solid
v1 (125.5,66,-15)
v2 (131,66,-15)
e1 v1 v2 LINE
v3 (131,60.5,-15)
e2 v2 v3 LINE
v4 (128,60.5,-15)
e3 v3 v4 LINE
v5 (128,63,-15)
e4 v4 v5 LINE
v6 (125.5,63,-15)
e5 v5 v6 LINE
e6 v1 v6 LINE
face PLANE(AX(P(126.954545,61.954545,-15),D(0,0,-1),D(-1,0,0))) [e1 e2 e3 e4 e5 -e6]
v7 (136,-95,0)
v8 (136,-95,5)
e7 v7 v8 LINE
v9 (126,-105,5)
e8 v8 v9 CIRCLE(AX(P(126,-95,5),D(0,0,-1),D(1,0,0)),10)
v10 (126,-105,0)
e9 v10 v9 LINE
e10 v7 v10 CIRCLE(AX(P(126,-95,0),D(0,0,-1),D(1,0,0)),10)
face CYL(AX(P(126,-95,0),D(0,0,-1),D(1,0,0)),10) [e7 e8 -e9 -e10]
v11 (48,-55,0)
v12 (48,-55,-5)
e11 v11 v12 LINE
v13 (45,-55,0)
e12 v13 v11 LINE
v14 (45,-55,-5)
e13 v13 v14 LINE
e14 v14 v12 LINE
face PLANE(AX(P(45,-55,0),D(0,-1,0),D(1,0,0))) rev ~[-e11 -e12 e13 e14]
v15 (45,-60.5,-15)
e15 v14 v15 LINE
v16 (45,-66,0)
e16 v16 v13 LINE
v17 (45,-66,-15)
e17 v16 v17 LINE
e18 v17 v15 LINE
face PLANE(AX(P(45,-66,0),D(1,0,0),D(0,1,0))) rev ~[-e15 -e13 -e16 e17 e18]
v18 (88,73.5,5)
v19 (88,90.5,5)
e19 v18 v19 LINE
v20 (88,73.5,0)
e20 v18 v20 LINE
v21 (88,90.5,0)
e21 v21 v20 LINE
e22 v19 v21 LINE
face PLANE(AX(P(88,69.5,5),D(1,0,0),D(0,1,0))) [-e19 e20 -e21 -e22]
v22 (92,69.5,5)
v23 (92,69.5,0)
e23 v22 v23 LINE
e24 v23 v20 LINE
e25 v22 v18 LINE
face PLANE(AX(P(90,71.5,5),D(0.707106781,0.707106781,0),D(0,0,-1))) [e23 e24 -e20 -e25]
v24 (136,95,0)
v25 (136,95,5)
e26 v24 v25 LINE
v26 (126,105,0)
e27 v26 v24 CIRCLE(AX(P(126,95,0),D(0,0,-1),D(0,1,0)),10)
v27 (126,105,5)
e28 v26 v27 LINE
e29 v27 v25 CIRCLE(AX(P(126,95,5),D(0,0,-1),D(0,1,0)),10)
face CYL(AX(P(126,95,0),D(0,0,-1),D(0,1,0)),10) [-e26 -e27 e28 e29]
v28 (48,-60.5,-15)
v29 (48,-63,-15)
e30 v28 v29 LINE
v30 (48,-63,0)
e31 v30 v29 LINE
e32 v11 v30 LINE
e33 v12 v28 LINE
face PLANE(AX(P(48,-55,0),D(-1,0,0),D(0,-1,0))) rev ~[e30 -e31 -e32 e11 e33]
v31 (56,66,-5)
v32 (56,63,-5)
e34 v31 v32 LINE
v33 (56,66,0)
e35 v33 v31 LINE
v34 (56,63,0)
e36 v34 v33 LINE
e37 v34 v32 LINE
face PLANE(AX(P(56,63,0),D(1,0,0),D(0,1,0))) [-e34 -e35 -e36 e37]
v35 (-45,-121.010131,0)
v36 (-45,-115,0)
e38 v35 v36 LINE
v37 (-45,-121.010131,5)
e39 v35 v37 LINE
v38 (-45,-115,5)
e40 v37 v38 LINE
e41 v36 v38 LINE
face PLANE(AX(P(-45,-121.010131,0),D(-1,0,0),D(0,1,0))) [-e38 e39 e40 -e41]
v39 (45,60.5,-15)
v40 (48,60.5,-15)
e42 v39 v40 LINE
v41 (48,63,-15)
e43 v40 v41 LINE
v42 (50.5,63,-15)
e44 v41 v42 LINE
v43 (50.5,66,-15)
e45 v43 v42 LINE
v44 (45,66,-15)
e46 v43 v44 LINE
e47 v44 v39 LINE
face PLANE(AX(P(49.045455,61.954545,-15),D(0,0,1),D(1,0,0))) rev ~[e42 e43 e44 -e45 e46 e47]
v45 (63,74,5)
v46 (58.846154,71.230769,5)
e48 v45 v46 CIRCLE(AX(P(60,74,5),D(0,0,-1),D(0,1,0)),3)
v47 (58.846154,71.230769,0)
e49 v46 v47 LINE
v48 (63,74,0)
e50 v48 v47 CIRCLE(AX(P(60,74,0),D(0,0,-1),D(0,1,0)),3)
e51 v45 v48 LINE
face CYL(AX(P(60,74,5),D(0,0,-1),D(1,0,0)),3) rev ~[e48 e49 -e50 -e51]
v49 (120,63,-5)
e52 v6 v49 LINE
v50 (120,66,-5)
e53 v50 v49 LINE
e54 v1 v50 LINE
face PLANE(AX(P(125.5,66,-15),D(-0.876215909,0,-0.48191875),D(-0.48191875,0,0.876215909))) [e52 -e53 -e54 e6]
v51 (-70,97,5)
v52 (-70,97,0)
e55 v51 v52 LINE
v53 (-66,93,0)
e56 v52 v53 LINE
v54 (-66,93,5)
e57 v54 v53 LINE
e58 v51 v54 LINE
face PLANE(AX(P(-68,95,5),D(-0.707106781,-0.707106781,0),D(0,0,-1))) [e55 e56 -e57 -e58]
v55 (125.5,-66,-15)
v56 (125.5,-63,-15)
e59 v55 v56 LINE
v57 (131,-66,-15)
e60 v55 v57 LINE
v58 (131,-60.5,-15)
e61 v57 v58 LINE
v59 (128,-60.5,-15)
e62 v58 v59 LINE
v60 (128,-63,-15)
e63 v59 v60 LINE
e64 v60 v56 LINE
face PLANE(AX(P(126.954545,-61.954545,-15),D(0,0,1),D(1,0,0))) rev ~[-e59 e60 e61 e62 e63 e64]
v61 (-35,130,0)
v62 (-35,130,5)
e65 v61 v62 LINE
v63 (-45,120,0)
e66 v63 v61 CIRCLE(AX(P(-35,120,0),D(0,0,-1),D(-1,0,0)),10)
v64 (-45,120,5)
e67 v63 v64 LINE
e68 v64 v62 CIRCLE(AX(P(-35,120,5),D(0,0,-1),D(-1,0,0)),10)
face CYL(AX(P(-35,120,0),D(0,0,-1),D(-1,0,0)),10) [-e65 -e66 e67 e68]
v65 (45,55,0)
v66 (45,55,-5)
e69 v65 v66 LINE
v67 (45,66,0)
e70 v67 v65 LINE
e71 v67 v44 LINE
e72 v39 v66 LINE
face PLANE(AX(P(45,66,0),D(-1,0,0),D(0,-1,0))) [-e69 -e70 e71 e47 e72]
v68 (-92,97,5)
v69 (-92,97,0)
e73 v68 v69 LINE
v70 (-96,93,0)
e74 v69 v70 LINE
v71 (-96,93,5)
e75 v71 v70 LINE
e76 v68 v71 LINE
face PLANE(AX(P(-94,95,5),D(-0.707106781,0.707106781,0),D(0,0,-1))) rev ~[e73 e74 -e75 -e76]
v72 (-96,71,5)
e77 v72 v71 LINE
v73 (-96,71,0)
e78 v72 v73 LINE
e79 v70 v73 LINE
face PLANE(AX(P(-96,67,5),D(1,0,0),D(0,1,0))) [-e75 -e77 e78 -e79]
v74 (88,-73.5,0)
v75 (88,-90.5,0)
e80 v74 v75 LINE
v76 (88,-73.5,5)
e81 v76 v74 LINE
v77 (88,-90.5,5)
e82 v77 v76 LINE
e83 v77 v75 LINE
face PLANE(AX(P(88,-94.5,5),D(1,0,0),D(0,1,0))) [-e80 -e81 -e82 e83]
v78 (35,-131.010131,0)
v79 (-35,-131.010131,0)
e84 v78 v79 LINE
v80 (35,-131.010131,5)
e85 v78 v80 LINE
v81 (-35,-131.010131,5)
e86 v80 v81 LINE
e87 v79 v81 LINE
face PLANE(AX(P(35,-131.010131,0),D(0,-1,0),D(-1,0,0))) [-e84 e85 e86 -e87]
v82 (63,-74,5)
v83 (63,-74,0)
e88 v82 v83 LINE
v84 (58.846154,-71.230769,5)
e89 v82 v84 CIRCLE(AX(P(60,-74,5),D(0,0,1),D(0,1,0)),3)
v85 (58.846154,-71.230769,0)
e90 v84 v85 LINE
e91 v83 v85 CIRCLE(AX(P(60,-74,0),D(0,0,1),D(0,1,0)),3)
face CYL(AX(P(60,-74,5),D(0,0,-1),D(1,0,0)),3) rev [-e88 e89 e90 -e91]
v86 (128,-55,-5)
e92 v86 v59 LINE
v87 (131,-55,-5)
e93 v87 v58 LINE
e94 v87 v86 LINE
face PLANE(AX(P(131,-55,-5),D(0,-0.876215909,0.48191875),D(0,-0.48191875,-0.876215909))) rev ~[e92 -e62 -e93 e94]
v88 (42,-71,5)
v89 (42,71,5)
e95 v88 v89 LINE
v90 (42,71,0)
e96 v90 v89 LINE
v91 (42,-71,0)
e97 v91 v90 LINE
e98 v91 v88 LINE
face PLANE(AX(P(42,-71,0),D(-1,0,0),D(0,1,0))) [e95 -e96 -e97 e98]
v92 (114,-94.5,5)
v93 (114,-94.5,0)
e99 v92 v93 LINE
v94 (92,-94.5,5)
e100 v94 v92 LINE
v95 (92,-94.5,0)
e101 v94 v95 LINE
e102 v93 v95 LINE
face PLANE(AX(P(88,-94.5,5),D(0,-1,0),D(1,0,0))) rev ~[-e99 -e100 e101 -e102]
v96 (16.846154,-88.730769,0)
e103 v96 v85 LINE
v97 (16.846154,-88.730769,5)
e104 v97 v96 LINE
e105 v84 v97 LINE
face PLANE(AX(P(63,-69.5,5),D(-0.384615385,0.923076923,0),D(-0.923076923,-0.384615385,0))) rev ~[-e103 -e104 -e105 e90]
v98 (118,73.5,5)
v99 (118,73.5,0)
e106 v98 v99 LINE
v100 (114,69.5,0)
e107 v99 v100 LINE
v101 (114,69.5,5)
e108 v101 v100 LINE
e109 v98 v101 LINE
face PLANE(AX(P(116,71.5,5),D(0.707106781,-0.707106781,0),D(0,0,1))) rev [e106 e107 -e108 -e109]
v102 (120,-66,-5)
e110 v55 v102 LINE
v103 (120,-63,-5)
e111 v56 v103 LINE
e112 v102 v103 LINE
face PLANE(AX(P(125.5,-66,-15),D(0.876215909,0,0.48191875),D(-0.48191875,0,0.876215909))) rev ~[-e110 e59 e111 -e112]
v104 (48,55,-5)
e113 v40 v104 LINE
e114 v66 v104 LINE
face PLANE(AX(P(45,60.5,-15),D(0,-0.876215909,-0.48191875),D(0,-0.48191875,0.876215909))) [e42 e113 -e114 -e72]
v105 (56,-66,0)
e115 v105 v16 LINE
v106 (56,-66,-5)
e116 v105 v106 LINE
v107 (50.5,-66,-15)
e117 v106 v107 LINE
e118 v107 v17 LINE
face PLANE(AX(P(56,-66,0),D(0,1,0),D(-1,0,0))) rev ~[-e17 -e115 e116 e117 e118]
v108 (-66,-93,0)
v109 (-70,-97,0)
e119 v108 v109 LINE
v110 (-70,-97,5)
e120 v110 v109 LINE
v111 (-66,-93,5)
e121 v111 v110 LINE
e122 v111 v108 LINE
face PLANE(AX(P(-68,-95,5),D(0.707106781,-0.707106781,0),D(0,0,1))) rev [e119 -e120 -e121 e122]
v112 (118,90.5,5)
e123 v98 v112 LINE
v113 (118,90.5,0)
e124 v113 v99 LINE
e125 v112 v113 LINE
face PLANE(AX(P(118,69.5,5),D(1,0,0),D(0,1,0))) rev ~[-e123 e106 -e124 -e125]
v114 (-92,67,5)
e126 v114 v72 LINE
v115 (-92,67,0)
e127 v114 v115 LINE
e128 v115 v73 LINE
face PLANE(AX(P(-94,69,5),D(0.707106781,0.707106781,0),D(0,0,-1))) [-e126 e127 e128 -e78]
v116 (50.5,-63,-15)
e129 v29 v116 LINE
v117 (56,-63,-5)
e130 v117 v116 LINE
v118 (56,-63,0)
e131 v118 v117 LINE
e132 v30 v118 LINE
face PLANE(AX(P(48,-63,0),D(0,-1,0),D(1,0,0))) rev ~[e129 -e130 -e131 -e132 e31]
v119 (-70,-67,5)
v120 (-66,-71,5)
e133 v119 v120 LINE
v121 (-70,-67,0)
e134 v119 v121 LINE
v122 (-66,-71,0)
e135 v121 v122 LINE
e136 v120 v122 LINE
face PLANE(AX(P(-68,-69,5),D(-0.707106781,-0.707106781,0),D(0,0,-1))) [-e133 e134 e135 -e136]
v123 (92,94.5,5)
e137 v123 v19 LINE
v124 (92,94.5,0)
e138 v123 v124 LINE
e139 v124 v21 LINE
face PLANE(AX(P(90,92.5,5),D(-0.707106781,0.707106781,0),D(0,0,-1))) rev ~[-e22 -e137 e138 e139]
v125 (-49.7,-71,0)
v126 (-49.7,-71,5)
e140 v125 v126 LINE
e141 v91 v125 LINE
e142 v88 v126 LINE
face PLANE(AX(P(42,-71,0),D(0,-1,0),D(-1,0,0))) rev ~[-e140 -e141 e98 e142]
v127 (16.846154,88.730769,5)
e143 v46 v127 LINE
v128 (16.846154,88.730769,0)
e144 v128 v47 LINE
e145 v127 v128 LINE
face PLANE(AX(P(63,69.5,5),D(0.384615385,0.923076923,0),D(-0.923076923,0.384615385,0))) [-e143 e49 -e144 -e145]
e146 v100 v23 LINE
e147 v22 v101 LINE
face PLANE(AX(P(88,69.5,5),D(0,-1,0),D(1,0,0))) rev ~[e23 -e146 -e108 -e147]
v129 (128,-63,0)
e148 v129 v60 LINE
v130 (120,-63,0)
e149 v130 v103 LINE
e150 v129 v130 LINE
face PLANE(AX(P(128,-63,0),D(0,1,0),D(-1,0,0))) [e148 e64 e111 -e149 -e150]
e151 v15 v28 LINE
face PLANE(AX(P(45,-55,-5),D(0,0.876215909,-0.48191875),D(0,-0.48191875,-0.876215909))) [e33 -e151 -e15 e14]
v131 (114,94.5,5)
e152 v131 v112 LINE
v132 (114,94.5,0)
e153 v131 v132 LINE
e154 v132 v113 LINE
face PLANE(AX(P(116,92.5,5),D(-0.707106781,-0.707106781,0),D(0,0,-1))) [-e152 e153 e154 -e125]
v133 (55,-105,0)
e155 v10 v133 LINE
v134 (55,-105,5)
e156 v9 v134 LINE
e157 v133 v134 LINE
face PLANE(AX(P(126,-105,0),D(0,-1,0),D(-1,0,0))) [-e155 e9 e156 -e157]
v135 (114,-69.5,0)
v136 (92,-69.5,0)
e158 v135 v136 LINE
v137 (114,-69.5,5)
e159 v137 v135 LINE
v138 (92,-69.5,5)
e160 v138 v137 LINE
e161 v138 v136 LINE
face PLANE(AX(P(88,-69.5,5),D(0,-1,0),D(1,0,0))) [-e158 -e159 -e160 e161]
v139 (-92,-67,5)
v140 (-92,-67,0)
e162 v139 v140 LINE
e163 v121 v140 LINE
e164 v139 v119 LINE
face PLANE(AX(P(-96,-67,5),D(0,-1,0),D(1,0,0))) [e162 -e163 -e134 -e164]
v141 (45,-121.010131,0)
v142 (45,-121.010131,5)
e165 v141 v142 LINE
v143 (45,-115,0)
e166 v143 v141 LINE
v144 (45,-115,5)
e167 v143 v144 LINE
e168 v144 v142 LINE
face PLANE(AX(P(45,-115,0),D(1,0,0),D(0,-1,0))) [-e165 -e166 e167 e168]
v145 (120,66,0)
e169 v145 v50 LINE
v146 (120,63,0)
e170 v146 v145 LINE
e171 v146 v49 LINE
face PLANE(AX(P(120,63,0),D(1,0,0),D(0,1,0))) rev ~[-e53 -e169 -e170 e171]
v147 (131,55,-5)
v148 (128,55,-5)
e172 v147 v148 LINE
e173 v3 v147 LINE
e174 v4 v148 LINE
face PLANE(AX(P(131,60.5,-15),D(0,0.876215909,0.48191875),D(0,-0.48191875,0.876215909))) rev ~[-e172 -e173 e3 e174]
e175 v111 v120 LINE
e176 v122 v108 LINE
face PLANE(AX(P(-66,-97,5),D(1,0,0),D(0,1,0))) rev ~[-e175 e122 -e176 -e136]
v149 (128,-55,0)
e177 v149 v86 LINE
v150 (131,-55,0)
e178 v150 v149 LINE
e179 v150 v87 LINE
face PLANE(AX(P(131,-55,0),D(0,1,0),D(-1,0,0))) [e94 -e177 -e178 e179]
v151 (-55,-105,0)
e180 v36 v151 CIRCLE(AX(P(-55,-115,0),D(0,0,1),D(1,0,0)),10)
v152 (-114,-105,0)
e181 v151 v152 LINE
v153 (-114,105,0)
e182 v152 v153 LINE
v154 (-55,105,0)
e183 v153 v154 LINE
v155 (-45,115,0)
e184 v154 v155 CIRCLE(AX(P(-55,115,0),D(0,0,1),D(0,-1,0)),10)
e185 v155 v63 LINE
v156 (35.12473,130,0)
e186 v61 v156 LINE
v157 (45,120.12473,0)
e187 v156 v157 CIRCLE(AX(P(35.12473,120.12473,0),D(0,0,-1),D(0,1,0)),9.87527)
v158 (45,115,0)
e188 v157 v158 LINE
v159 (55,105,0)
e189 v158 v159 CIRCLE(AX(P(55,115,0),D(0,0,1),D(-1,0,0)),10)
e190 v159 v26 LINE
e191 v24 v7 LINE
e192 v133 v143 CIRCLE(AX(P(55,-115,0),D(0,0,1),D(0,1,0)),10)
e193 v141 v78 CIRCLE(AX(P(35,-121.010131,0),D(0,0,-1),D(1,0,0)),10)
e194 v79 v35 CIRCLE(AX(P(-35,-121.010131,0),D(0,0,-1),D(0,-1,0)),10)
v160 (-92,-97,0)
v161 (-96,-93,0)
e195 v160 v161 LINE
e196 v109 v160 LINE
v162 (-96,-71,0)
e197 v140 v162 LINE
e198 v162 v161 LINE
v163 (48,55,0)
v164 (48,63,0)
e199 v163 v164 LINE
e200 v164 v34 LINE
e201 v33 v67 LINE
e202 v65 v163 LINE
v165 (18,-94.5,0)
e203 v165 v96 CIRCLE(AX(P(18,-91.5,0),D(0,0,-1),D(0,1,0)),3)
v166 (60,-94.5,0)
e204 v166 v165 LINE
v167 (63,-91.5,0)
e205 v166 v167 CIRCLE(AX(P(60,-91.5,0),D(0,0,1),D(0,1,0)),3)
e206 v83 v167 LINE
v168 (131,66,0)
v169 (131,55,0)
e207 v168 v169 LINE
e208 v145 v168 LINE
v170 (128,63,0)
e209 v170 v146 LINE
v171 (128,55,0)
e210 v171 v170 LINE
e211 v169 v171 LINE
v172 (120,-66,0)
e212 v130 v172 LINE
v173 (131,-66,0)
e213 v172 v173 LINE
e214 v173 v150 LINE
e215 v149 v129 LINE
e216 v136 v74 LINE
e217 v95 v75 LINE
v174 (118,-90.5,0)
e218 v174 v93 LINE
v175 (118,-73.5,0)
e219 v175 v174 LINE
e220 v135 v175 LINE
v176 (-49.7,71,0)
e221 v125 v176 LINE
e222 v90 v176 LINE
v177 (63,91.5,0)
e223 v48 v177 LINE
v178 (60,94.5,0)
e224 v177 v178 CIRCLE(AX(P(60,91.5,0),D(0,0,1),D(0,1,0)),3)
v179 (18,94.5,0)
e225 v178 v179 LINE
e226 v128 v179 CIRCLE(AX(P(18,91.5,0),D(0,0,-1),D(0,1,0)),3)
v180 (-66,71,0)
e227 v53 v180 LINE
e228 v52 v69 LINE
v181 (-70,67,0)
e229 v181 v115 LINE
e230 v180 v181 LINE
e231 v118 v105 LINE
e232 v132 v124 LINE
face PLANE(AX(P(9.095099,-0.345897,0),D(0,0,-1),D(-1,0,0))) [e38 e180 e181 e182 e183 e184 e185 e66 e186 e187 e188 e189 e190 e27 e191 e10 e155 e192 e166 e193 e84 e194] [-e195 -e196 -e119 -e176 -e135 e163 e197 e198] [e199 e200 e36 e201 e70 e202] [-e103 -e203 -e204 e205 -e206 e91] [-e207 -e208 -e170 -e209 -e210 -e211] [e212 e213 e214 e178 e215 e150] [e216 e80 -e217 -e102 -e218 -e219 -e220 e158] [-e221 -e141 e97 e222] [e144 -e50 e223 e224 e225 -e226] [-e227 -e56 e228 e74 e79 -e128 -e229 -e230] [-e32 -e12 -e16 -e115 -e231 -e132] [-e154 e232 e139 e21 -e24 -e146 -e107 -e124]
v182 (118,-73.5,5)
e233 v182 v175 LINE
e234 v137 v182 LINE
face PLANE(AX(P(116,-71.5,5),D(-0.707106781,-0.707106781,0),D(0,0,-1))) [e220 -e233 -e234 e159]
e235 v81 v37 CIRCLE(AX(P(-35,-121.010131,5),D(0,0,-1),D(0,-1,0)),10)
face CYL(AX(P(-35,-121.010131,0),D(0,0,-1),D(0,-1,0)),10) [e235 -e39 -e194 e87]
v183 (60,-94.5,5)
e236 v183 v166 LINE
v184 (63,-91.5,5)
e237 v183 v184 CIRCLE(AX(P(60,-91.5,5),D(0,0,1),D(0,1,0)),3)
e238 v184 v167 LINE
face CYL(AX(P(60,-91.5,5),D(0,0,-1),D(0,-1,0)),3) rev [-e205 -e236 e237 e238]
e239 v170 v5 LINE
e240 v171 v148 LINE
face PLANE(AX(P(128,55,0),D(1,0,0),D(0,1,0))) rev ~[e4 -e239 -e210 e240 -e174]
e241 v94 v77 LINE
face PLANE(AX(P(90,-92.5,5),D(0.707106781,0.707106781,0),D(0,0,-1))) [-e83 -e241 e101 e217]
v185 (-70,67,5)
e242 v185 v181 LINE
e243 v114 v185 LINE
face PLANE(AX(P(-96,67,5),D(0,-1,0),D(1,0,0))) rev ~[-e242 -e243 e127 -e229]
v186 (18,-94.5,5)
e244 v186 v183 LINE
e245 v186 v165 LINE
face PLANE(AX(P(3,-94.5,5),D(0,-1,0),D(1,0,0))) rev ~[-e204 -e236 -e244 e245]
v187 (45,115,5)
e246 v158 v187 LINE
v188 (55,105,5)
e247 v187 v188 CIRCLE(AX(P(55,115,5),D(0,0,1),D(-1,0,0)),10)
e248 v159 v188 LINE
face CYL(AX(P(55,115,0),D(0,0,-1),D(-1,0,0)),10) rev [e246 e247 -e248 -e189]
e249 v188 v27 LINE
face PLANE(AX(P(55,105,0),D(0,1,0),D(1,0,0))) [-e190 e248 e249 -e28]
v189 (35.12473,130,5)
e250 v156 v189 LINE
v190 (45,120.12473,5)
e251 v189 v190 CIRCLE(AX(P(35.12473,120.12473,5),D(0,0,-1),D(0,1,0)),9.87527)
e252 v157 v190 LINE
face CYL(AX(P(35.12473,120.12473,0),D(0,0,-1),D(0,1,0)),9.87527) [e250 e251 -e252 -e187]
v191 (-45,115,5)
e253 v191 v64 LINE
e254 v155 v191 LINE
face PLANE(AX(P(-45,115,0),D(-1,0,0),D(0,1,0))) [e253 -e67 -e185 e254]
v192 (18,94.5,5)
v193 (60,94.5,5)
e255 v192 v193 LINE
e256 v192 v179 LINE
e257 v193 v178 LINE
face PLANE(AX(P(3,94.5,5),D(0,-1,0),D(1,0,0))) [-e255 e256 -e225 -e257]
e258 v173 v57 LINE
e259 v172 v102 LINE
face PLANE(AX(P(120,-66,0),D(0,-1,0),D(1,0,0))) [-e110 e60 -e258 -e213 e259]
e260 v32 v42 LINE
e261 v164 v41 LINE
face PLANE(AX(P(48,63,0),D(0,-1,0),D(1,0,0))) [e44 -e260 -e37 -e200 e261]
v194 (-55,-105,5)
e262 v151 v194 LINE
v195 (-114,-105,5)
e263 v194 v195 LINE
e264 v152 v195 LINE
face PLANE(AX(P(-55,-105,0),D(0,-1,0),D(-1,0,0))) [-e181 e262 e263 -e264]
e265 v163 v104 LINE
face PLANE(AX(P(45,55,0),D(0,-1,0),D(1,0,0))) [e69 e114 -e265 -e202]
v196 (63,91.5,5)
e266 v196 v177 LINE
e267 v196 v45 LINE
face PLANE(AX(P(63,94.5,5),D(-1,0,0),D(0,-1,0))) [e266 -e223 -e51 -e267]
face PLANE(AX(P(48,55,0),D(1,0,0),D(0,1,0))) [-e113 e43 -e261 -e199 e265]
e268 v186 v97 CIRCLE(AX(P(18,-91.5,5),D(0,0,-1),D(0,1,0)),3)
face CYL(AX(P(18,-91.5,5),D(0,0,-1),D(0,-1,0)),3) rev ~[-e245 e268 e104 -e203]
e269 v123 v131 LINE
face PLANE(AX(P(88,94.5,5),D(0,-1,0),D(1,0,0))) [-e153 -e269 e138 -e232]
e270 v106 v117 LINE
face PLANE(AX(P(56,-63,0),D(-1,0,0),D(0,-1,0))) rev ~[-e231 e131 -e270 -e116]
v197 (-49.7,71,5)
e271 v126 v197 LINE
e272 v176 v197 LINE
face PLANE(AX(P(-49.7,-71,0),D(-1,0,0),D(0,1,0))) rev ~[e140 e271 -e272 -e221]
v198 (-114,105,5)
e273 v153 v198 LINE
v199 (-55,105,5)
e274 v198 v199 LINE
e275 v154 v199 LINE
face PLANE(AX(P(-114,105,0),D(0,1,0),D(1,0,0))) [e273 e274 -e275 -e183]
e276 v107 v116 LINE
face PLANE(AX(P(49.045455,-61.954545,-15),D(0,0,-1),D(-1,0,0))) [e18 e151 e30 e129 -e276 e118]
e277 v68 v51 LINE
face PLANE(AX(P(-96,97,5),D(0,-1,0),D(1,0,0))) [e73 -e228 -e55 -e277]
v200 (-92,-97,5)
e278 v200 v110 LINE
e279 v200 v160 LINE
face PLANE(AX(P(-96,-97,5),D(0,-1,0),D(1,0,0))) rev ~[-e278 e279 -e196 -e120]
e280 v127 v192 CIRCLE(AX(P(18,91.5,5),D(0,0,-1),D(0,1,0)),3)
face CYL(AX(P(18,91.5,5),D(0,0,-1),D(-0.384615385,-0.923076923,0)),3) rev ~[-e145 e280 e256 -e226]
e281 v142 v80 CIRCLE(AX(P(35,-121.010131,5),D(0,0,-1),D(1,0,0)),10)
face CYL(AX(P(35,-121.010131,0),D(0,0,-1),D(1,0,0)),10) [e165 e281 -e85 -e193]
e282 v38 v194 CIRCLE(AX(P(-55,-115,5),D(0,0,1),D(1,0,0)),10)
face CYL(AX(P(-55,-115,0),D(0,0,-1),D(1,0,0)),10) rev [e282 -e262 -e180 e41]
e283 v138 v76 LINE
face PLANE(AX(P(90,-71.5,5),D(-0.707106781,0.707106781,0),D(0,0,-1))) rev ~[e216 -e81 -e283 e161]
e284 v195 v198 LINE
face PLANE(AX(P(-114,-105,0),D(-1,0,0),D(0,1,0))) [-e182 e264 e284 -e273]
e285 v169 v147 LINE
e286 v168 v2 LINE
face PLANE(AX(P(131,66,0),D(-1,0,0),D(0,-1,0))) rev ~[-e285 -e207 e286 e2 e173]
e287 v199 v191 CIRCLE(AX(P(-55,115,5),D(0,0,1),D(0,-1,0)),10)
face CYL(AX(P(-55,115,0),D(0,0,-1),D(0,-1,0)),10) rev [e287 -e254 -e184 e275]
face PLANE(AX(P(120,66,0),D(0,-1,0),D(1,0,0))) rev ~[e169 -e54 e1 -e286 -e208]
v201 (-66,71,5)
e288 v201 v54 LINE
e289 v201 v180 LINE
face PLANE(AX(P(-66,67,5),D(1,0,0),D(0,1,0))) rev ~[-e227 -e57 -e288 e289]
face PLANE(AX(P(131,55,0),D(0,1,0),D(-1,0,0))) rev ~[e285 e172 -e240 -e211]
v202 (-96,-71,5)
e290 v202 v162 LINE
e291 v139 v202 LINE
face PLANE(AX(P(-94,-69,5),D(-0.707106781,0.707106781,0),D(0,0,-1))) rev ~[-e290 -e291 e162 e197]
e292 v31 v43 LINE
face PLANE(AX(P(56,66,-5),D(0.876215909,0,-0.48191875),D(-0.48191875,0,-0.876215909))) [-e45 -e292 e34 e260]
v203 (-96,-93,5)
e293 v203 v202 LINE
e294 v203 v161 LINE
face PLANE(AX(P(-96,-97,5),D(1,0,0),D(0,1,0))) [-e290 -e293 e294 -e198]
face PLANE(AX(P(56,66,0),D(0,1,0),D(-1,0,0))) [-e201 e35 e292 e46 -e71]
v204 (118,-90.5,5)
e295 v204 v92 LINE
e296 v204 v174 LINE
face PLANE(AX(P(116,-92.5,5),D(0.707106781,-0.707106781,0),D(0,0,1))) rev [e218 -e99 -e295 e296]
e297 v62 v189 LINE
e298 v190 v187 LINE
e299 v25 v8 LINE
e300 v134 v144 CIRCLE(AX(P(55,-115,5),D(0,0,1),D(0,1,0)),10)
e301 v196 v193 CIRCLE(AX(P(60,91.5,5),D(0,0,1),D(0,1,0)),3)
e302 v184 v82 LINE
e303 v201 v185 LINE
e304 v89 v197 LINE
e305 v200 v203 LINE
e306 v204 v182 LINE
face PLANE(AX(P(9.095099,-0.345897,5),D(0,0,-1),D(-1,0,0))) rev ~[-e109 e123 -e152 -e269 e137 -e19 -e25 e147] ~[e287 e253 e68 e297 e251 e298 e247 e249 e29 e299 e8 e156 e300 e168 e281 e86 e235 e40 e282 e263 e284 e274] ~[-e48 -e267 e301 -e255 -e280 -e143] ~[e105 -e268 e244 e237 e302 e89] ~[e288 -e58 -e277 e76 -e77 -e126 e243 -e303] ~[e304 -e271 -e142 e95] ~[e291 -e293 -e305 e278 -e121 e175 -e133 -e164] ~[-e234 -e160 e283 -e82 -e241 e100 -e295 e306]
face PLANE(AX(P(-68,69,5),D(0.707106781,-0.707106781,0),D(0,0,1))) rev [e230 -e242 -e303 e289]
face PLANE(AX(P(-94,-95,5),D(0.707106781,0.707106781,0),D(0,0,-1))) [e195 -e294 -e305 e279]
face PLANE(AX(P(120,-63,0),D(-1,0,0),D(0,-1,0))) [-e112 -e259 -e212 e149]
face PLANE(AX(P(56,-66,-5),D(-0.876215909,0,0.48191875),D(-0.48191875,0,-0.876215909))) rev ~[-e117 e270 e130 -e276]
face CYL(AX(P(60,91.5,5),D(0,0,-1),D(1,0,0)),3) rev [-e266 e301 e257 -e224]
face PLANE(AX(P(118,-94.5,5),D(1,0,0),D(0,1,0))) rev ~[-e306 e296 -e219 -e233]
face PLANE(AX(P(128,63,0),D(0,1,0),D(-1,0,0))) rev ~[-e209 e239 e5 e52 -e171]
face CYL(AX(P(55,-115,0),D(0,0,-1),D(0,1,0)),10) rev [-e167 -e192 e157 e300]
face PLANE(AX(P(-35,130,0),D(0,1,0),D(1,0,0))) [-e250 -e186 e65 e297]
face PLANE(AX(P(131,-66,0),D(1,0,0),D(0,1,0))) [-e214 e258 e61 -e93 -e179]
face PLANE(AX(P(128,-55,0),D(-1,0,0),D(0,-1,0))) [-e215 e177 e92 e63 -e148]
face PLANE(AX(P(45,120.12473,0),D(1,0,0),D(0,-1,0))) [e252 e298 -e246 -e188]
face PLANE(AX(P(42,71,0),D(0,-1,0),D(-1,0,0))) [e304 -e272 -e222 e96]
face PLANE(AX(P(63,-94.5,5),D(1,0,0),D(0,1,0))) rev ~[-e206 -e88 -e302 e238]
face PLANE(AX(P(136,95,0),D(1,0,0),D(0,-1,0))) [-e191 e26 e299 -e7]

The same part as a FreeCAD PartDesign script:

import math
import FreeCAD as App
import Part
import Sketcher

V = App.Vector


def edges_at(feature, points):
    """Names of the edges that pass closest to the given points."""
    edges = feature.Shape.Edges
    near = lambda p: min(range(len(edges)), key=lambda i: edges[i].distToShape(Part.Vertex(*p))[0])
    return sorted({f"Edge{near(p) + 1}" for p in points})

doc = App.newDocument("Part")
body = doc.addObject("PartDesign::Body", "Body")

# Sketch on XY plane
sketch1 = doc.addObject("Sketcher::SketchObject", "Sketch")
body.addObject(sketch1)
sketch1.AttachmentSupport = (doc.XY_Plane, [""])
sketch1.MapMode = "FlatFace"
sketch1.addGeometry(Part.LineSegment(V(-45, 120, 0), V(-45, 115, 0)), False)
sketch1.addGeometry(Part.ArcOfCircle(Part.Circle(V(-55, 115, 0), V(0, 0, 1), 10), math.radians(-90), math.radians(0)), False)
sketch1.addGeometry(Part.LineSegment(V(-55, 105, 0), V(-114, 105, 0)), False)
sketch1.addGeometry(Part.LineSegment(V(-114, 105, 0), V(-114, -105, 0)), False)
sketch1.addGeometry(Part.LineSegment(V(-114, -105, 0), V(-55, -105, 0)), False)
sketch1.addGeometry(Part.ArcOfCircle(Part.Circle(V(-55, -115, 0), V(0, 0, 1), 10), math.radians(0), math.radians(90)), False)
sketch1.addGeometry(Part.LineSegment(V(-45, -115, 0), V(-45, -121.010131, 0)), False)
sketch1.addGeometry(Part.ArcOfCircle(Part.Circle(V(-35, -121.010131, 0), V(0, 0, 1), 10), math.radians(180), math.radians(270)), False)
sketch1.addGeometry(Part.LineSegment(V(-35, -131.010131, 0), V(35, -131.010131, 0)), False)
sketch1.addGeometry(Part.ArcOfCircle(Part.Circle(V(35, -121.010131, 0), V(0, 0, 1), 10), math.radians(-90), math.radians(0)), False)
sketch1.addGeometry(Part.LineSegment(V(45, -121.010131, 0), V(45, -115, 0)), False)
sketch1.addGeometry(Part.ArcOfCircle(Part.Circle(V(55, -115, 0), V(0, 0, 1), 10), math.radians(90), math.radians(180)), False)
sketch1.addGeometry(Part.LineSegment(V(55, -105, 0), V(126, -105, 0)), False)
sketch1.addGeometry(Part.ArcOfCircle(Part.Circle(V(126, -95, 0), V(0, 0, 1), 10), math.radians(-90), math.radians(0)), False)
sketch1.addGeometry(Part.LineSegment(V(136, -95, 0), V(136, 95, 0)), False)
sketch1.addGeometry(Part.ArcOfCircle(Part.Circle(V(126, 95, 0), V(0, 0, 1), 10), math.radians(0), math.radians(90)), False)
sketch1.addGeometry(Part.LineSegment(V(126, 105, 0), V(55, 105, 0)), False)
sketch1.addGeometry(Part.ArcOfCircle(Part.Circle(V(55, 115, 0), V(0, 0, 1), 10), math.radians(180), math.radians(270)), False)
sketch1.addGeometry(Part.LineSegment(V(45, 115, 0), V(45, 120.12473, 0)), False)
sketch1.addGeometry(Part.ArcOfCircle(Part.Circle(V(35.12473, 120.12473, 0), V(0, 0, 1), 9.87527), math.radians(0), math.radians(90)), False)
sketch1.addGeometry(Part.LineSegment(V(35.12473, 130, 0), V(-35, 130, 0)), False)
sketch1.addGeometry(Part.ArcOfCircle(Part.Circle(V(-35, 120, 0), V(0, 0, 1), 10), math.radians(90), math.radians(180)), False)
sketch1.addConstraint(Sketcher.Constraint("Tangent", 0, 2, 1, 2))
sketch1.addConstraint(Sketcher.Constraint("Tangent", 1, 1, 2, 1))
sketch1.addConstraint(Sketcher.Constraint("Coincident", 2, 2, 3, 1))
sketch1.addConstraint(Sketcher.Constraint("Coincident", 3, 2, 4, 1))
sketch1.addConstraint(Sketcher.Constraint("Tangent", 4, 2, 5, 2))
sketch1.addConstraint(Sketcher.Constraint("Tangent", 5, 1, 6, 1))
sketch1.addConstraint(Sketcher.Constraint("Tangent", 6, 2, 7, 1))
sketch1.addConstraint(Sketcher.Constraint("Tangent", 7, 2, 8, 1))
sketch1.addConstraint(Sketcher.Constraint("Tangent", 8, 2, 9, 1))
sketch1.addConstraint(Sketcher.Constraint("Tangent", 9, 2, 10, 1))
sketch1.addConstraint(Sketcher.Constraint("Tangent", 10, 2, 11, 2))
sketch1.addConstraint(Sketcher.Constraint("Tangent", 11, 1, 12, 1))
sketch1.addConstraint(Sketcher.Constraint("Tangent", 12, 2, 13, 1))
sketch1.addConstraint(Sketcher.Constraint("Tangent", 13, 2, 14, 1))
sketch1.addConstraint(Sketcher.Constraint("Tangent", 14, 2, 15, 1))
sketch1.addConstraint(Sketcher.Constraint("Tangent", 15, 2, 16, 1))
sketch1.addConstraint(Sketcher.Constraint("Tangent", 16, 2, 17, 2))
sketch1.addConstraint(Sketcher.Constraint("Tangent", 17, 1, 18, 1))
sketch1.addConstraint(Sketcher.Constraint("Tangent", 18, 2, 19, 1))
sketch1.addConstraint(Sketcher.Constraint("Tangent", 19, 2, 20, 1))
sketch1.addConstraint(Sketcher.Constraint("Tangent", 20, 2, 21, 1))
sketch1.addConstraint(Sketcher.Constraint("Tangent", 21, 2, 0, 1))
sketch1.addConstraint(Sketcher.Constraint("Vertical", 0))
sketch1.addConstraint(Sketcher.Constraint("Horizontal", 2))
sketch1.addConstraint(Sketcher.Constraint("Vertical", 3))
sketch1.addConstraint(Sketcher.Constraint("Horizontal", 4))
sketch1.addConstraint(Sketcher.Constraint("Vertical", 6))
sketch1.addConstraint(Sketcher.Constraint("Horizontal", 8))
sketch1.addConstraint(Sketcher.Constraint("Vertical", 10))
sketch1.addConstraint(Sketcher.Constraint("Horizontal", 12))
sketch1.addConstraint(Sketcher.Constraint("Vertical", 14))
sketch1.addConstraint(Sketcher.Constraint("Horizontal", 16))
sketch1.addConstraint(Sketcher.Constraint("Vertical", 18))
sketch1.addConstraint(Sketcher.Constraint("Horizontal", 20))
sketch1.addConstraint(Sketcher.Constraint("Equal", 1, 5))
sketch1.addConstraint(Sketcher.Constraint("Equal", 5, 7))
sketch1.addConstraint(Sketcher.Constraint("Equal", 7, 9))
sketch1.addConstraint(Sketcher.Constraint("Equal", 9, 11))
sketch1.addConstraint(Sketcher.Constraint("Equal", 11, 13))
sketch1.addConstraint(Sketcher.Constraint("Equal", 13, 15))
sketch1.addConstraint(Sketcher.Constraint("Equal", 15, 17))
sketch1.addConstraint(Sketcher.Constraint("Equal", 17, 21))
sketch1.addConstraint(Sketcher.Constraint("Symmetric", 1, 3, 11, 3, -1, 1))
sketch1.addConstraint(Sketcher.Constraint("Symmetric", 5, 3, 17, 3, -1, 1))
sketch1.addConstraint(Sketcher.Constraint("Symmetric", 5, 3, 11, 3, -2))
sketch1.addConstraint(Sketcher.Constraint("Radius", 1, 10.0))
sketch1.addConstraint(Sketcher.Constraint("DistanceX", 2, 2, 2, 1, 59.0))
sketch1.addConstraint(Sketcher.Constraint("DistanceX", 8, 1, 8, 2, 70.0))
sketch1.addConstraint(Sketcher.Constraint("DistanceX", 12, 1, 12, 2, 71.0))
sketch1.addConstraint(Sketcher.Constraint("DistanceY", 0, 2, 0, 1, 5.0))
sketch1.addConstraint(Sketcher.Constraint("DistanceY", 3, 2, 3, 1, 210.0))
sketch1.addConstraint(Sketcher.Constraint("Radius", 19, 9.87527))
sketch1.addConstraint(Sketcher.Constraint("DistanceY", 6, 2, 6, 1, 6.010131))
pad1 = doc.addObject("PartDesign::Pad", "Pad")
body.addObject(pad1)
pad1.Profile = sketch1
pad1.Length = 5

# Sketch on XY plane
sketch2 = doc.addObject("Sketcher::SketchObject", "Sketch001")
body.addObject(sketch2)
sketch2.AttachmentSupport = (doc.XY_Plane, [""])
sketch2.MapMode = "FlatFace"
sketch2.AttachmentOffset = App.Placement(V(0, 0, 5), App.Rotation())
sketch2.addGeometry(Part.LineSegment(V(-96, 97, 0), V(-96, 67, 0)), False)
sketch2.addGeometry(Part.LineSegment(V(-96, 67, 0), V(-66, 67, 0)), False)
sketch2.addGeometry(Part.LineSegment(V(-66, 67, 0), V(-66, 97, 0)), False)
sketch2.addGeometry(Part.LineSegment(V(-66, 97, 0), V(-96, 97, 0)), False)
sketch2.addGeometry(Part.LineSegment(V(-96, -67, 0), V(-96, -97, 0)), False)
sketch2.addGeometry(Part.LineSegment(V(-96, -97, 0), V(-66, -97, 0)), False)
sketch2.addGeometry(Part.LineSegment(V(-66, -97, 0), V(-66, -67, 0)), False)
sketch2.addGeometry(Part.LineSegment(V(-66, -67, 0), V(-96, -67, 0)), False)
sketch2.addGeometry(Part.LineSegment(V(88, 94.5, 0), V(88, 69.5, 0)), False)
sketch2.addGeometry(Part.LineSegment(V(88, 69.5, 0), V(118, 69.5, 0)), False)
sketch2.addGeometry(Part.LineSegment(V(118, 69.5, 0), V(118, 94.5, 0)), False)
sketch2.addGeometry(Part.LineSegment(V(118, 94.5, 0), V(88, 94.5, 0)), False)
sketch2.addGeometry(Part.LineSegment(V(88, -69.5, 0), V(88, -94.5, 0)), False)
sketch2.addGeometry(Part.LineSegment(V(88, -94.5, 0), V(118, -94.5, 0)), False)
sketch2.addGeometry(Part.LineSegment(V(118, -94.5, 0), V(118, -69.5, 0)), False)
sketch2.addGeometry(Part.LineSegment(V(118, -69.5, 0), V(88, -69.5, 0)), False)
sketch2.addGeometry(Part.LineSegment(V(63, 94.5, 0), V(3, 94.5, 0)), False)
sketch2.addGeometry(Part.LineSegment(V(3, 94.5, 0), V(63, 69.5, 0)), False)
sketch2.addGeometry(Part.LineSegment(V(63, 69.5, 0), V(63, 94.5, 0)), False)
sketch2.addGeometry(Part.LineSegment(V(3, -94.5, 0), V(63, -94.5, 0)), False)
sketch2.addGeometry(Part.LineSegment(V(63, -94.5, 0), V(63, -69.5, 0)), False)
sketch2.addGeometry(Part.LineSegment(V(63, -69.5, 0), V(3, -94.5, 0)), False)
sketch2.addConstraint(Sketcher.Constraint("Coincident", 0, 2, 1, 1))
sketch2.addConstraint(Sketcher.Constraint("Coincident", 1, 2, 2, 1))
sketch2.addConstraint(Sketcher.Constraint("Coincident", 2, 2, 3, 1))
sketch2.addConstraint(Sketcher.Constraint("Coincident", 3, 2, 0, 1))
sketch2.addConstraint(Sketcher.Constraint("Coincident", 4, 2, 5, 1))
sketch2.addConstraint(Sketcher.Constraint("Coincident", 5, 2, 6, 1))
sketch2.addConstraint(Sketcher.Constraint("Coincident", 6, 2, 7, 1))
sketch2.addConstraint(Sketcher.Constraint("Coincident", 7, 2, 4, 1))
sketch2.addConstraint(Sketcher.Constraint("Coincident", 8, 2, 9, 1))
sketch2.addConstraint(Sketcher.Constraint("Coincident", 9, 2, 10, 1))
sketch2.addConstraint(Sketcher.Constraint("Coincident", 10, 2, 11, 1))
sketch2.addConstraint(Sketcher.Constraint("Coincident", 11, 2, 8, 1))
sketch2.addConstraint(Sketcher.Constraint("Coincident", 12, 2, 13, 1))
sketch2.addConstraint(Sketcher.Constraint("Coincident", 13, 2, 14, 1))
sketch2.addConstraint(Sketcher.Constraint("Coincident", 14, 2, 15, 1))
sketch2.addConstraint(Sketcher.Constraint("Coincident", 15, 2, 12, 1))
sketch2.addConstraint(Sketcher.Constraint("Coincident", 16, 2, 17, 1))
sketch2.addConstraint(Sketcher.Constraint("Coincident", 17, 2, 18, 1))
sketch2.addConstraint(Sketcher.Constraint("Coincident", 18, 2, 16, 1))
sketch2.addConstraint(Sketcher.Constraint("Coincident", 19, 2, 20, 1))
sketch2.addConstraint(Sketcher.Constraint("Coincident", 20, 2, 21, 1))
sketch2.addConstraint(Sketcher.Constraint("Coincident", 21, 2, 19, 1))
sketch2.addConstraint(Sketcher.Constraint("Vertical", 0))
sketch2.addConstraint(Sketcher.Constraint("Horizontal", 1))
sketch2.addConstraint(Sketcher.Constraint("Vertical", 2))
sketch2.addConstraint(Sketcher.Constraint("Horizontal", 3))
sketch2.addConstraint(Sketcher.Constraint("Vertical", 4))
sketch2.addConstraint(Sketcher.Constraint("Horizontal", 5))
sketch2.addConstraint(Sketcher.Constraint("Vertical", 6))
sketch2.addConstraint(Sketcher.Constraint("Horizontal", 7))
sketch2.addConstraint(Sketcher.Constraint("Vertical", 8))
sketch2.addConstraint(Sketcher.Constraint("Horizontal", 9))
sketch2.addConstraint(Sketcher.Constraint("Vertical", 10))
sketch2.addConstraint(Sketcher.Constraint("Horizontal", 11))
sketch2.addConstraint(Sketcher.Constraint("Vertical", 12))
sketch2.addConstraint(Sketcher.Constraint("Horizontal", 13))
sketch2.addConstraint(Sketcher.Constraint("Vertical", 14))
sketch2.addConstraint(Sketcher.Constraint("Horizontal", 15))
sketch2.addConstraint(Sketcher.Constraint("Horizontal", 16))
sketch2.addConstraint(Sketcher.Constraint("Vertical", 18))
sketch2.addConstraint(Sketcher.Constraint("Horizontal", 19))
sketch2.addConstraint(Sketcher.Constraint("Vertical", 20))
sketch2.addConstraint(Sketcher.Constraint("Symmetric", 3, 2, 4, 2, -1))
sketch2.addConstraint(Sketcher.Constraint("Symmetric", 1, 2, 6, 2, -1))
sketch2.addConstraint(Sketcher.Constraint("Symmetric", 11, 2, 12, 2, -1))
sketch2.addConstraint(Sketcher.Constraint("Symmetric", 9, 2, 14, 2, -1))
sketch2.addConstraint(Sketcher.Constraint("Symmetric", 18, 2, 19, 2, -1))
sketch2.addConstraint(Sketcher.Constraint("Horizontal", 11, 2, 16, 2))
sketch2.addConstraint(Sketcher.Constraint("Horizontal", 9, 2, 17, 2))
sketch2.addConstraint(Sketcher.Constraint("Horizontal", 15, 2, 20, 2))
sketch2.addConstraint(Sketcher.Constraint("Vertical", 16, 2, 21, 2))
sketch2.addConstraint(Sketcher.Constraint("Equal", 7, 9))
sketch2.addConstraint(Sketcher.Constraint("Equal", 15, 0))
sketch2.addConstraint(Sketcher.Constraint("DistanceX", 1, 1, 1, 2, 30.0))
sketch2.addConstraint(Sketcher.Constraint("DistanceX", 16, 2, 16, 1, 60.0))
sketch2.addConstraint(Sketcher.Constraint("DistanceY", 8, 2, 8, 1, 25.0))
sketch2.addConstraint(Sketcher.Constraint("DistanceX", 0, 2, -1, 1, 96.0))
sketch2.addConstraint(Sketcher.Constraint("DistanceY", -1, 1, 0, 2, 67.0))
sketch2.addConstraint(Sketcher.Constraint("DistanceX", -1, 1, 8, 2, 88.0))
sketch2.addConstraint(Sketcher.Constraint("DistanceX", -1, 1, 16, 2, 3.0))
sketch2.addConstraint(Sketcher.Constraint("DistanceY", 12, 2, 8, 2, 164.0))
pocket1 = doc.addObject("PartDesign::Pocket", "Pocket")
body.addObject(pocket1)
pocket1.Profile = sketch2
pocket1.Type = "ThroughAll"
doc.recompute()

chamfer = doc.addObject("PartDesign::Chamfer", "Chamfer")
body.addObject(chamfer)
chamfer.Base = (pocket1, edges_at(pocket1, [
    (118, -69.5, 2.5),
    (118, -94.5, 2.5),
    (88, -94.5, 2.5),
    (88, -69.5, 2.5),
    (118, 94.5, 2.5),
    (118, 69.5, 2.5),
    (88, 69.5, 2.5),
    (88, 94.5, 2.5),
    (-66, -67, 2.5),
    (-66, -97, 2.5),
    (-96, -97, 2.5),
    (-96, -67, 2.5),
    (-66, 97, 2.5),
    (-66, 67, 2.5),
    (-96, 67, 2.5),
    (-96, 97, 2.5),
]))
chamfer.Size = 4

# Sketch on XY plane
sketch3 = doc.addObject("Sketcher::SketchObject", "Sketch002")
body.addObject(sketch3)
sketch3.AttachmentSupport = (doc.XY_Plane, [""])
sketch3.MapMode = "FlatFace"
sketch3.addGeometry(Part.LineSegment(V(131, 66, 0), V(131, 55, 0)), False)
sketch3.addGeometry(Part.LineSegment(V(131, 55, 0), V(128, 55, 0)), False)
sketch3.addGeometry(Part.LineSegment(V(128, 55, 0), V(128, 63, 0)), False)
sketch3.addGeometry(Part.LineSegment(V(128, 63, 0), V(120, 63, 0)), False)
sketch3.addGeometry(Part.LineSegment(V(120, 63, 0), V(120, 66, 0)), False)
sketch3.addGeometry(Part.LineSegment(V(120, 66, 0), V(131, 66, 0)), False)
sketch3.addGeometry(Part.LineSegment(V(56, 66, 0), V(56, 63, 0)), False)
sketch3.addGeometry(Part.LineSegment(V(56, 63, 0), V(48, 63, 0)), False)
sketch3.addGeometry(Part.LineSegment(V(48, 63, 0), V(48, 55, 0)), False)
sketch3.addGeometry(Part.LineSegment(V(48, 55, 0), V(45, 55, 0)), False)
sketch3.addGeometry(Part.LineSegment(V(45, 55, 0), V(45, 66, 0)), False)
sketch3.addGeometry(Part.LineSegment(V(45, 66, 0), V(56, 66, 0)), False)
sketch3.addGeometry(Part.LineSegment(V(48, -63, 0), V(56, -63, 0)), False)
sketch3.addGeometry(Part.LineSegment(V(56, -63, 0), V(56, -66, 0)), False)
sketch3.addGeometry(Part.LineSegment(V(56, -66, 0), V(45, -66, 0)), False)
sketch3.addGeometry(Part.LineSegment(V(45, -66, 0), V(45, -55, 0)), False)
sketch3.addGeometry(Part.LineSegment(V(45, -55, 0), V(48, -55, 0)), False)
sketch3.addGeometry(Part.LineSegment(V(48, -55, 0), V(48, -63, 0)), False)
sketch3.addGeometry(Part.LineSegment(V(120, -66, 0), V(120, -63, 0)), False)
sketch3.addGeometry(Part.LineSegment(V(120, -63, 0), V(128, -63, 0)), False)
sketch3.addGeometry(Part.LineSegment(V(128, -63, 0), V(128, -55, 0)), False)
sketch3.addGeometry(Part.LineSegment(V(128, -55, 0), V(131, -55, 0)), False)
sketch3.addGeometry(Part.LineSegment(V(131, -55, 0), V(131, -66, 0)), False)
sketch3.addGeometry(Part.LineSegment(V(131, -66, 0), V(120, -66, 0)), False)
sketch3.addConstraint(Sketcher.Constraint("Coincident", 0, 2, 1, 1))
sketch3.addConstraint(Sketcher.Constraint("Coincident", 1, 2, 2, 1))
sketch3.addConstraint(Sketcher.Constraint("Coincident", 2, 2, 3, 1))
sketch3.addConstraint(Sketcher.Constraint("Coincident", 3, 2, 4, 1))
sketch3.addConstraint(Sketcher.Constraint("Coincident", 4, 2, 5, 1))
sketch3.addConstraint(Sketcher.Constraint("Coincident", 5, 2, 0, 1))
sketch3.addConstraint(Sketcher.Constraint("Coincident", 6, 2, 7, 1))
sketch3.addConstraint(Sketcher.Constraint("Coincident", 7, 2, 8, 1))
sketch3.addConstraint(Sketcher.Constraint("Coincident", 8, 2, 9, 1))
sketch3.addConstraint(Sketcher.Constraint("Coincident", 9, 2, 10, 1))
sketch3.addConstraint(Sketcher.Constraint("Coincident", 10, 2, 11, 1))
sketch3.addConstraint(Sketcher.Constraint("Coincident", 11, 2, 6, 1))
sketch3.addConstraint(Sketcher.Constraint("Coincident", 12, 2, 13, 1))
sketch3.addConstraint(Sketcher.Constraint("Coincident", 13, 2, 14, 1))
sketch3.addConstraint(Sketcher.Constraint("Coincident", 14, 2, 15, 1))
sketch3.addConstraint(Sketcher.Constraint("Coincident", 15, 2, 16, 1))
sketch3.addConstraint(Sketcher.Constraint("Coincident", 16, 2, 17, 1))
sketch3.addConstraint(Sketcher.Constraint("Coincident", 17, 2, 12, 1))
sketch3.addConstraint(Sketcher.Constraint("Coincident", 18, 2, 19, 1))
sketch3.addConstraint(Sketcher.Constraint("Coincident", 19, 2, 20, 1))
sketch3.addConstraint(Sketcher.Constraint("Coincident", 20, 2, 21, 1))
sketch3.addConstraint(Sketcher.Constraint("Coincident", 21, 2, 22, 1))
sketch3.addConstraint(Sketcher.Constraint("Coincident", 22, 2, 23, 1))
sketch3.addConstraint(Sketcher.Constraint("Coincident", 23, 2, 18, 1))
sketch3.addConstraint(Sketcher.Constraint("Vertical", 0))
sketch3.addConstraint(Sketcher.Constraint("Horizontal", 1))
sketch3.addConstraint(Sketcher.Constraint("Vertical", 2))
sketch3.addConstraint(Sketcher.Constraint("Horizontal", 3))
sketch3.addConstraint(Sketcher.Constraint("Vertical", 4))
sketch3.addConstraint(Sketcher.Constraint("Horizontal", 5))
sketch3.addConstraint(Sketcher.Constraint("Vertical", 6))
sketch3.addConstraint(Sketcher.Constraint("Horizontal", 7))
sketch3.addConstraint(Sketcher.Constraint("Vertical", 8))
sketch3.addConstraint(Sketcher.Constraint("Horizontal", 9))
sketch3.addConstraint(Sketcher.Constraint("Vertical", 10))
sketch3.addConstraint(Sketcher.Constraint("Horizontal", 11))
sketch3.addConstraint(Sketcher.Constraint("Horizontal", 12))
sketch3.addConstraint(Sketcher.Constraint("Vertical", 13))
sketch3.addConstraint(Sketcher.Constraint("Horizontal", 14))
sketch3.addConstraint(Sketcher.Constraint("Vertical", 15))
sketch3.addConstraint(Sketcher.Constraint("Horizontal", 16))
sketch3.addConstraint(Sketcher.Constraint("Vertical", 17))
sketch3.addConstraint(Sketcher.Constraint("Vertical", 18))
sketch3.addConstraint(Sketcher.Constraint("Horizontal", 19))
sketch3.addConstraint(Sketcher.Constraint("Vertical", 20))
sketch3.addConstraint(Sketcher.Constraint("Horizontal", 21))
sketch3.addConstraint(Sketcher.Constraint("Vertical", 22))
sketch3.addConstraint(Sketcher.Constraint("Horizontal", 23))
sketch3.addConstraint(Sketcher.Constraint("Symmetric", 6, 2, 12, 2, -1))
sketch3.addConstraint(Sketcher.Constraint("Symmetric", 10, 2, 14, 2, -1))
sketch3.addConstraint(Sketcher.Constraint("Symmetric", 8, 2, 16, 2, -1))
sketch3.addConstraint(Sketcher.Constraint("Symmetric", 3, 2, 18, 2, -1))
sketch3.addConstraint(Sketcher.Constraint("Symmetric", 1, 2, 20, 2, -1))
sketch3.addConstraint(Sketcher.Constraint("Symmetric", 5, 2, 22, 2, -1))
sketch3.addConstraint(Sketcher.Constraint("Horizontal", 3, 2, 6, 2))
sketch3.addConstraint(Sketcher.Constraint("Horizontal", 1, 2, 8, 2))
sketch3.addConstraint(Sketcher.Constraint("Horizontal", 5, 2, 10, 2))
sketch3.addConstraint(Sketcher.Constraint("Equal", 3, 7))
sketch3.addConstraint(Sketcher.Constraint("Equal", 1, 9))
sketch3.addConstraint(Sketcher.Constraint("Equal", 23, 0))
sketch3.addConstraint(Sketcher.Constraint("Equal", 19, 2))
sketch3.addConstraint(Sketcher.Constraint("DistanceX", 1, 2, 1, 1, 3.0))
sketch3.addConstraint(Sketcher.Constraint("DistanceX", 3, 2, 3, 1, 8.0))
sketch3.addConstraint(Sketcher.Constraint("DistanceX", -1, 1, 0, 2, 131.0))
sketch3.addConstraint(Sketcher.Constraint("DistanceY", -1, 1, 0, 2, 55.0))
sketch3.addConstraint(Sketcher.Constraint("DistanceX", -1, 1, 6, 2, 56.0))
pad2 = doc.addObject("PartDesign::Pad", "Pad001")
body.addObject(pad2)
pad2.Profile = sketch3
pad2.Length = 15
pad2.Reversed = True

# Sketch on YZ plane
sketch4 = doc.addObject("Sketcher::SketchObject", "Sketch003")
body.addObject(sketch4)
sketch4.AttachmentSupport = (doc.YZ_Plane, [""])
sketch4.MapMode = "FlatFace"
sketch4.AttachmentOffset = App.Placement(V(0, 0, 131), App.Rotation())
sketch4.addGeometry(Part.LineSegment(V(60.5, -15, 0), V(55, -5, 0)), False)
sketch4.addGeometry(Part.LineSegment(V(55, -5, 0), V(55, -15, 0)), False)
sketch4.addGeometry(Part.LineSegment(V(55, -15, 0), V(60.5, -15, 0)), False)
sketch4.addGeometry(Part.LineSegment(V(-60.5, -15, 0), V(-55, -15, 0)), False)
sketch4.addGeometry(Part.LineSegment(V(-55, -15, 0), V(-55, -5, 0)), False)
sketch4.addGeometry(Part.LineSegment(V(-55, -5, 0), V(-60.5, -15, 0)), False)
sketch4.addConstraint(Sketcher.Constraint("Coincident", 0, 2, 1, 1))
sketch4.addConstraint(Sketcher.Constraint("Coincident", 1, 2, 2, 1))
sketch4.addConstraint(Sketcher.Constraint("Coincident", 2, 2, 0, 1))
sketch4.addConstraint(Sketcher.Constraint("Coincident", 3, 2, 4, 1))
sketch4.addConstraint(Sketcher.Constraint("Coincident", 4, 2, 5, 1))
sketch4.addConstraint(Sketcher.Constraint("Coincident", 5, 2, 3, 1))
sketch4.addConstraint(Sketcher.Constraint("Vertical", 1))
sketch4.addConstraint(Sketcher.Constraint("Horizontal", 2))
sketch4.addConstraint(Sketcher.Constraint("Horizontal", 3))
sketch4.addConstraint(Sketcher.Constraint("Vertical", 4))
sketch4.addConstraint(Sketcher.Constraint("Symmetric", 1, 2, 3, 2, -2))
sketch4.addConstraint(Sketcher.Constraint("Horizontal", 0, 2, 4, 2))
sketch4.addConstraint(Sketcher.Constraint("Equal", 2, 3))
sketch4.addConstraint(Sketcher.Constraint("DistanceY", 1, 2, 1, 1, 10.0))
sketch4.addConstraint(Sketcher.Constraint("DistanceX", 2, 1, 2, 2, 5.5))
sketch4.addConstraint(Sketcher.Constraint("DistanceX", -1, 1, 0, 2, 55.0))
sketch4.addConstraint(Sketcher.Constraint("DistanceY", 0, 2, -1, 1, 5.0))
pocket2 = doc.addObject("PartDesign::Pocket", "Pocket001")
body.addObject(pocket2)
pocket2.Profile = sketch4
pocket2.Length = 3

# Sketch on XZ plane
sketch5 = doc.addObject("Sketcher::SketchObject", "Sketch004")
body.addObject(sketch5)
sketch5.AttachmentSupport = (doc.XZ_Plane, [""])
sketch5.MapMode = "FlatFace"
sketch5.AttachmentOffset = App.Placement(V(0, 0, -66), App.Rotation())
sketch5.addGeometry(Part.LineSegment(V(56, -15, 0), V(50.5, -15, 0)), False)
sketch5.addGeometry(Part.LineSegment(V(50.5, -15, 0), V(56, -5, 0)), False)
sketch5.addGeometry(Part.LineSegment(V(56, -5, 0), V(56, -15, 0)), False)
sketch5.addGeometry(Part.LineSegment(V(125.5, -15, 0), V(120, -15, 0)), False)
sketch5.addGeometry(Part.LineSegment(V(120, -15, 0), V(120, -5, 0)), False)
sketch5.addGeometry(Part.LineSegment(V(120, -5, 0), V(125.5, -15, 0)), False)
sketch5.addConstraint(Sketcher.Constraint("Coincident", 0, 2, 1, 1))
sketch5.addConstraint(Sketcher.Constraint("Coincident", 1, 2, 2, 1))
sketch5.addConstraint(Sketcher.Constraint("Coincident", 2, 2, 0, 1))
sketch5.addConstraint(Sketcher.Constraint("Coincident", 3, 2, 4, 1))
sketch5.addConstraint(Sketcher.Constraint("Coincident", 4, 2, 5, 1))
sketch5.addConstraint(Sketcher.Constraint("Coincident", 5, 2, 3, 1))
sketch5.addConstraint(Sketcher.Constraint("Horizontal", 0))
sketch5.addConstraint(Sketcher.Constraint("Vertical", 2))
sketch5.addConstraint(Sketcher.Constraint("Horizontal", 3))
sketch5.addConstraint(Sketcher.Constraint("Vertical", 4))
sketch5.addConstraint(Sketcher.Constraint("Horizontal", 2, 2, 3, 2))
sketch5.addConstraint(Sketcher.Constraint("Horizontal", 1, 2, 4, 2))
sketch5.addConstraint(Sketcher.Constraint("Equal", 0, 3))
sketch5.addConstraint(Sketcher.Constraint("DistanceY", 2, 2, 2, 1, 10.0))
sketch5.addConstraint(Sketcher.Constraint("DistanceX", 0, 2, 0, 1, 5.5))
sketch5.addConstraint(Sketcher.Constraint("DistanceY", 0, 2, -1, 1, 15.0))
sketch5.addConstraint(Sketcher.Constraint("DistanceX", -1, 1, 1, 2, 56.0))
sketch5.addConstraint(Sketcher.Constraint("DistanceX", -1, 1, 3, 2, 120.0))
pocket3 = doc.addObject("PartDesign::Pocket", "Pocket002")
body.addObject(pocket3)
pocket3.Profile = sketch5
pocket3.Length = 3
pocket3.Reversed = True

# Sketch on YZ plane
sketch6 = doc.addObject("Sketcher::SketchObject", "Sketch005")
body.addObject(sketch6)
sketch6.AttachmentSupport = (doc.YZ_Plane, [""])
sketch6.MapMode = "FlatFace"
sketch6.AttachmentOffset = App.Placement(V(0, 0, 45), App.Rotation())
sketch6.addGeometry(Part.LineSegment(V(55, -5, 0), V(60.5, -15, 0)), False)
sketch6.addGeometry(Part.LineSegment(V(60.5, -15, 0), V(55, -15, 0)), False)
sketch6.addGeometry(Part.LineSegment(V(55, -15, 0), V(55, -5, 0)), False)
sketch6.addGeometry(Part.LineSegment(V(-55, -15, 0), V(-60.5, -15, 0)), False)
sketch6.addGeometry(Part.LineSegment(V(-60.5, -15, 0), V(-55, -5, 0)), False)
sketch6.addGeometry(Part.LineSegment(V(-55, -5, 0), V(-55, -15, 0)), False)
sketch6.addConstraint(Sketcher.Constraint("Coincident", 0, 2, 1, 1))
sketch6.addConstraint(Sketcher.Constraint("Coincident", 1, 2, 2, 1))
sketch6.addConstraint(Sketcher.Constraint("Coincident", 2, 2, 0, 1))
sketch6.addConstraint(Sketcher.Constraint("Coincident", 3, 2, 4, 1))
sketch6.addConstraint(Sketcher.Constraint("Coincident", 4, 2, 5, 1))
sketch6.addConstraint(Sketcher.Constraint("Coincident", 5, 2, 3, 1))
sketch6.addConstraint(Sketcher.Constraint("Horizontal", 1))
sketch6.addConstraint(Sketcher.Constraint("Vertical", 2))
sketch6.addConstraint(Sketcher.Constraint("Horizontal", 3))
sketch6.addConstraint(Sketcher.Constraint("Vertical", 5))
sketch6.addConstraint(Sketcher.Constraint("Symmetric", 0, 2, 3, 2, -2))
sketch6.addConstraint(Sketcher.Constraint("Symmetric", 2, 2, 4, 2, -2))
sketch6.addConstraint(Sketcher.Constraint("DistanceY", 2, 1, 2, 2, 10.0))
sketch6.addConstraint(Sketcher.Constraint("DistanceX", 1, 2, 1, 1, 5.5))
sketch6.addConstraint(Sketcher.Constraint("DistanceY", 0, 2, -1, 1, 15.0))
sketch6.addConstraint(Sketcher.Constraint("DistanceX", -1, 1, 1, 2, 55.0))
pocket4 = doc.addObject("PartDesign::Pocket", "Pocket003")
body.addObject(pocket4)
pocket4.Profile = sketch6
pocket4.Length = 3
pocket4.Reversed = True

# Sketch on XZ plane
sketch7 = doc.addObject("Sketcher::SketchObject", "Sketch006")
body.addObject(sketch7)
sketch7.AttachmentSupport = (doc.XZ_Plane, [""])
sketch7.MapMode = "FlatFace"
sketch7.AttachmentOffset = App.Placement(V(0, 0, 66), App.Rotation())
sketch7.addGeometry(Part.LineSegment(V(50.5, -15, 0), V(56, -15, 0)), False)
sketch7.addGeometry(Part.LineSegment(V(56, -15, 0), V(56, -5, 0)), False)
sketch7.addGeometry(Part.LineSegment(V(56, -5, 0), V(50.5, -15, 0)), False)
sketch7.addGeometry(Part.LineSegment(V(120, -15, 0), V(125.5, -15, 0)), False)
sketch7.addGeometry(Part.LineSegment(V(125.5, -15, 0), V(120, -5, 0)), False)
sketch7.addGeometry(Part.LineSegment(V(120, -5, 0), V(120, -15, 0)), False)
sketch7.addConstraint(Sketcher.Constraint("Coincident", 0, 2, 1, 1))
sketch7.addConstraint(Sketcher.Constraint("Coincident", 1, 2, 2, 1))
sketch7.addConstraint(Sketcher.Constraint("Coincident", 2, 2, 0, 1))
sketch7.addConstraint(Sketcher.Constraint("Coincident", 3, 2, 4, 1))
sketch7.addConstraint(Sketcher.Constraint("Coincident", 4, 2, 5, 1))
sketch7.addConstraint(Sketcher.Constraint("Coincident", 5, 2, 3, 1))
sketch7.addConstraint(Sketcher.Constraint("Horizontal", 0))
sketch7.addConstraint(Sketcher.Constraint("Vertical", 1))
sketch7.addConstraint(Sketcher.Constraint("Horizontal", 3))
sketch7.addConstraint(Sketcher.Constraint("Vertical", 5))
sketch7.addConstraint(Sketcher.Constraint("Horizontal", 2, 2, 3, 2))
sketch7.addConstraint(Sketcher.Constraint("Horizontal", 1, 2, 4, 2))
sketch7.addConstraint(Sketcher.Constraint("Equal", 0, 3))
sketch7.addConstraint(Sketcher.Constraint("DistanceY", 1, 1, 1, 2, 10.0))
sketch7.addConstraint(Sketcher.Constraint("DistanceX", 0, 1, 0, 2, 5.5))
sketch7.addConstraint(Sketcher.Constraint("DistanceX", -1, 1, 0, 2, 56.0))
sketch7.addConstraint(Sketcher.Constraint("DistanceY", 0, 2, -1, 1, 15.0))
sketch7.addConstraint(Sketcher.Constraint("DistanceX", -1, 1, 4, 2, 120.0))
pocket5 = doc.addObject("PartDesign::Pocket", "Pocket004")
body.addObject(pocket5)
pocket5.Profile = sketch7
pocket5.Length = 3
doc.recompute()

fillet = doc.addObject("PartDesign::Fillet", "Fillet")
body.addObject(fillet)
fillet.Base = (pocket5, edges_at(pocket5, [
    (63, -69.5, 2.5),
    (63, -94.5, 2.5),
    (3, -94.5, 2.5),
    (63, 69.5, 2.5),
    (3, 94.5, 2.5),
    (63, 94.5, 2.5),
]))
fillet.Radius = 3

# Sketch on XY plane
sketch8 = doc.addObject("Sketcher::SketchObject", "Sketch007")
body.addObject(sketch8)
sketch8.AttachmentSupport = (doc.XY_Plane, [""])
sketch8.MapMode = "FlatFace"
sketch8.addGeometry(Part.LineSegment(V(42, 71, 0), V(42, -71, 0)), False)
sketch8.addGeometry(Part.LineSegment(V(42, -71, 0), V(-49.7, -71, 0)), False)
sketch8.addGeometry(Part.LineSegment(V(-49.7, -71, 0), V(-49.7, 71, 0)), False)
sketch8.addGeometry(Part.LineSegment(V(-49.7, 71, 0), V(42, 71, 0)), False)
sketch8.addConstraint(Sketcher.Constraint("Coincident", 0, 2, 1, 1))
sketch8.addConstraint(Sketcher.Constraint("Coincident", 1, 2, 2, 1))
sketch8.addConstraint(Sketcher.Constraint("Coincident", 2, 2, 3, 1))
sketch8.addConstraint(Sketcher.Constraint("Coincident", 3, 2, 0, 1))
sketch8.addConstraint(Sketcher.Constraint("Vertical", 0))
sketch8.addConstraint(Sketcher.Constraint("Horizontal", 1))
sketch8.addConstraint(Sketcher.Constraint("Vertical", 2))
sketch8.addConstraint(Sketcher.Constraint("Horizontal", 3))
sketch8.addConstraint(Sketcher.Constraint("DistanceY", 0, 2, 0, 1, 142.0))
sketch8.addConstraint(Sketcher.Constraint("DistanceX", 1, 2, 1, 1, 91.7))
sketch8.addConstraint(Sketcher.Constraint("DistanceX", -1, 1, 0, 2, 42.0))
sketch8.addConstraint(Sketcher.Constraint("DistanceY", 0, 2, -1, 1, 71.0))
pocket6 = doc.addObject("PartDesign::Pocket", "Pocket005")
body.addObject(pocket6)
pocket6.Profile = sketch8
pocket6.Length = 5
pocket6.Reversed = True

doc.recompute()
